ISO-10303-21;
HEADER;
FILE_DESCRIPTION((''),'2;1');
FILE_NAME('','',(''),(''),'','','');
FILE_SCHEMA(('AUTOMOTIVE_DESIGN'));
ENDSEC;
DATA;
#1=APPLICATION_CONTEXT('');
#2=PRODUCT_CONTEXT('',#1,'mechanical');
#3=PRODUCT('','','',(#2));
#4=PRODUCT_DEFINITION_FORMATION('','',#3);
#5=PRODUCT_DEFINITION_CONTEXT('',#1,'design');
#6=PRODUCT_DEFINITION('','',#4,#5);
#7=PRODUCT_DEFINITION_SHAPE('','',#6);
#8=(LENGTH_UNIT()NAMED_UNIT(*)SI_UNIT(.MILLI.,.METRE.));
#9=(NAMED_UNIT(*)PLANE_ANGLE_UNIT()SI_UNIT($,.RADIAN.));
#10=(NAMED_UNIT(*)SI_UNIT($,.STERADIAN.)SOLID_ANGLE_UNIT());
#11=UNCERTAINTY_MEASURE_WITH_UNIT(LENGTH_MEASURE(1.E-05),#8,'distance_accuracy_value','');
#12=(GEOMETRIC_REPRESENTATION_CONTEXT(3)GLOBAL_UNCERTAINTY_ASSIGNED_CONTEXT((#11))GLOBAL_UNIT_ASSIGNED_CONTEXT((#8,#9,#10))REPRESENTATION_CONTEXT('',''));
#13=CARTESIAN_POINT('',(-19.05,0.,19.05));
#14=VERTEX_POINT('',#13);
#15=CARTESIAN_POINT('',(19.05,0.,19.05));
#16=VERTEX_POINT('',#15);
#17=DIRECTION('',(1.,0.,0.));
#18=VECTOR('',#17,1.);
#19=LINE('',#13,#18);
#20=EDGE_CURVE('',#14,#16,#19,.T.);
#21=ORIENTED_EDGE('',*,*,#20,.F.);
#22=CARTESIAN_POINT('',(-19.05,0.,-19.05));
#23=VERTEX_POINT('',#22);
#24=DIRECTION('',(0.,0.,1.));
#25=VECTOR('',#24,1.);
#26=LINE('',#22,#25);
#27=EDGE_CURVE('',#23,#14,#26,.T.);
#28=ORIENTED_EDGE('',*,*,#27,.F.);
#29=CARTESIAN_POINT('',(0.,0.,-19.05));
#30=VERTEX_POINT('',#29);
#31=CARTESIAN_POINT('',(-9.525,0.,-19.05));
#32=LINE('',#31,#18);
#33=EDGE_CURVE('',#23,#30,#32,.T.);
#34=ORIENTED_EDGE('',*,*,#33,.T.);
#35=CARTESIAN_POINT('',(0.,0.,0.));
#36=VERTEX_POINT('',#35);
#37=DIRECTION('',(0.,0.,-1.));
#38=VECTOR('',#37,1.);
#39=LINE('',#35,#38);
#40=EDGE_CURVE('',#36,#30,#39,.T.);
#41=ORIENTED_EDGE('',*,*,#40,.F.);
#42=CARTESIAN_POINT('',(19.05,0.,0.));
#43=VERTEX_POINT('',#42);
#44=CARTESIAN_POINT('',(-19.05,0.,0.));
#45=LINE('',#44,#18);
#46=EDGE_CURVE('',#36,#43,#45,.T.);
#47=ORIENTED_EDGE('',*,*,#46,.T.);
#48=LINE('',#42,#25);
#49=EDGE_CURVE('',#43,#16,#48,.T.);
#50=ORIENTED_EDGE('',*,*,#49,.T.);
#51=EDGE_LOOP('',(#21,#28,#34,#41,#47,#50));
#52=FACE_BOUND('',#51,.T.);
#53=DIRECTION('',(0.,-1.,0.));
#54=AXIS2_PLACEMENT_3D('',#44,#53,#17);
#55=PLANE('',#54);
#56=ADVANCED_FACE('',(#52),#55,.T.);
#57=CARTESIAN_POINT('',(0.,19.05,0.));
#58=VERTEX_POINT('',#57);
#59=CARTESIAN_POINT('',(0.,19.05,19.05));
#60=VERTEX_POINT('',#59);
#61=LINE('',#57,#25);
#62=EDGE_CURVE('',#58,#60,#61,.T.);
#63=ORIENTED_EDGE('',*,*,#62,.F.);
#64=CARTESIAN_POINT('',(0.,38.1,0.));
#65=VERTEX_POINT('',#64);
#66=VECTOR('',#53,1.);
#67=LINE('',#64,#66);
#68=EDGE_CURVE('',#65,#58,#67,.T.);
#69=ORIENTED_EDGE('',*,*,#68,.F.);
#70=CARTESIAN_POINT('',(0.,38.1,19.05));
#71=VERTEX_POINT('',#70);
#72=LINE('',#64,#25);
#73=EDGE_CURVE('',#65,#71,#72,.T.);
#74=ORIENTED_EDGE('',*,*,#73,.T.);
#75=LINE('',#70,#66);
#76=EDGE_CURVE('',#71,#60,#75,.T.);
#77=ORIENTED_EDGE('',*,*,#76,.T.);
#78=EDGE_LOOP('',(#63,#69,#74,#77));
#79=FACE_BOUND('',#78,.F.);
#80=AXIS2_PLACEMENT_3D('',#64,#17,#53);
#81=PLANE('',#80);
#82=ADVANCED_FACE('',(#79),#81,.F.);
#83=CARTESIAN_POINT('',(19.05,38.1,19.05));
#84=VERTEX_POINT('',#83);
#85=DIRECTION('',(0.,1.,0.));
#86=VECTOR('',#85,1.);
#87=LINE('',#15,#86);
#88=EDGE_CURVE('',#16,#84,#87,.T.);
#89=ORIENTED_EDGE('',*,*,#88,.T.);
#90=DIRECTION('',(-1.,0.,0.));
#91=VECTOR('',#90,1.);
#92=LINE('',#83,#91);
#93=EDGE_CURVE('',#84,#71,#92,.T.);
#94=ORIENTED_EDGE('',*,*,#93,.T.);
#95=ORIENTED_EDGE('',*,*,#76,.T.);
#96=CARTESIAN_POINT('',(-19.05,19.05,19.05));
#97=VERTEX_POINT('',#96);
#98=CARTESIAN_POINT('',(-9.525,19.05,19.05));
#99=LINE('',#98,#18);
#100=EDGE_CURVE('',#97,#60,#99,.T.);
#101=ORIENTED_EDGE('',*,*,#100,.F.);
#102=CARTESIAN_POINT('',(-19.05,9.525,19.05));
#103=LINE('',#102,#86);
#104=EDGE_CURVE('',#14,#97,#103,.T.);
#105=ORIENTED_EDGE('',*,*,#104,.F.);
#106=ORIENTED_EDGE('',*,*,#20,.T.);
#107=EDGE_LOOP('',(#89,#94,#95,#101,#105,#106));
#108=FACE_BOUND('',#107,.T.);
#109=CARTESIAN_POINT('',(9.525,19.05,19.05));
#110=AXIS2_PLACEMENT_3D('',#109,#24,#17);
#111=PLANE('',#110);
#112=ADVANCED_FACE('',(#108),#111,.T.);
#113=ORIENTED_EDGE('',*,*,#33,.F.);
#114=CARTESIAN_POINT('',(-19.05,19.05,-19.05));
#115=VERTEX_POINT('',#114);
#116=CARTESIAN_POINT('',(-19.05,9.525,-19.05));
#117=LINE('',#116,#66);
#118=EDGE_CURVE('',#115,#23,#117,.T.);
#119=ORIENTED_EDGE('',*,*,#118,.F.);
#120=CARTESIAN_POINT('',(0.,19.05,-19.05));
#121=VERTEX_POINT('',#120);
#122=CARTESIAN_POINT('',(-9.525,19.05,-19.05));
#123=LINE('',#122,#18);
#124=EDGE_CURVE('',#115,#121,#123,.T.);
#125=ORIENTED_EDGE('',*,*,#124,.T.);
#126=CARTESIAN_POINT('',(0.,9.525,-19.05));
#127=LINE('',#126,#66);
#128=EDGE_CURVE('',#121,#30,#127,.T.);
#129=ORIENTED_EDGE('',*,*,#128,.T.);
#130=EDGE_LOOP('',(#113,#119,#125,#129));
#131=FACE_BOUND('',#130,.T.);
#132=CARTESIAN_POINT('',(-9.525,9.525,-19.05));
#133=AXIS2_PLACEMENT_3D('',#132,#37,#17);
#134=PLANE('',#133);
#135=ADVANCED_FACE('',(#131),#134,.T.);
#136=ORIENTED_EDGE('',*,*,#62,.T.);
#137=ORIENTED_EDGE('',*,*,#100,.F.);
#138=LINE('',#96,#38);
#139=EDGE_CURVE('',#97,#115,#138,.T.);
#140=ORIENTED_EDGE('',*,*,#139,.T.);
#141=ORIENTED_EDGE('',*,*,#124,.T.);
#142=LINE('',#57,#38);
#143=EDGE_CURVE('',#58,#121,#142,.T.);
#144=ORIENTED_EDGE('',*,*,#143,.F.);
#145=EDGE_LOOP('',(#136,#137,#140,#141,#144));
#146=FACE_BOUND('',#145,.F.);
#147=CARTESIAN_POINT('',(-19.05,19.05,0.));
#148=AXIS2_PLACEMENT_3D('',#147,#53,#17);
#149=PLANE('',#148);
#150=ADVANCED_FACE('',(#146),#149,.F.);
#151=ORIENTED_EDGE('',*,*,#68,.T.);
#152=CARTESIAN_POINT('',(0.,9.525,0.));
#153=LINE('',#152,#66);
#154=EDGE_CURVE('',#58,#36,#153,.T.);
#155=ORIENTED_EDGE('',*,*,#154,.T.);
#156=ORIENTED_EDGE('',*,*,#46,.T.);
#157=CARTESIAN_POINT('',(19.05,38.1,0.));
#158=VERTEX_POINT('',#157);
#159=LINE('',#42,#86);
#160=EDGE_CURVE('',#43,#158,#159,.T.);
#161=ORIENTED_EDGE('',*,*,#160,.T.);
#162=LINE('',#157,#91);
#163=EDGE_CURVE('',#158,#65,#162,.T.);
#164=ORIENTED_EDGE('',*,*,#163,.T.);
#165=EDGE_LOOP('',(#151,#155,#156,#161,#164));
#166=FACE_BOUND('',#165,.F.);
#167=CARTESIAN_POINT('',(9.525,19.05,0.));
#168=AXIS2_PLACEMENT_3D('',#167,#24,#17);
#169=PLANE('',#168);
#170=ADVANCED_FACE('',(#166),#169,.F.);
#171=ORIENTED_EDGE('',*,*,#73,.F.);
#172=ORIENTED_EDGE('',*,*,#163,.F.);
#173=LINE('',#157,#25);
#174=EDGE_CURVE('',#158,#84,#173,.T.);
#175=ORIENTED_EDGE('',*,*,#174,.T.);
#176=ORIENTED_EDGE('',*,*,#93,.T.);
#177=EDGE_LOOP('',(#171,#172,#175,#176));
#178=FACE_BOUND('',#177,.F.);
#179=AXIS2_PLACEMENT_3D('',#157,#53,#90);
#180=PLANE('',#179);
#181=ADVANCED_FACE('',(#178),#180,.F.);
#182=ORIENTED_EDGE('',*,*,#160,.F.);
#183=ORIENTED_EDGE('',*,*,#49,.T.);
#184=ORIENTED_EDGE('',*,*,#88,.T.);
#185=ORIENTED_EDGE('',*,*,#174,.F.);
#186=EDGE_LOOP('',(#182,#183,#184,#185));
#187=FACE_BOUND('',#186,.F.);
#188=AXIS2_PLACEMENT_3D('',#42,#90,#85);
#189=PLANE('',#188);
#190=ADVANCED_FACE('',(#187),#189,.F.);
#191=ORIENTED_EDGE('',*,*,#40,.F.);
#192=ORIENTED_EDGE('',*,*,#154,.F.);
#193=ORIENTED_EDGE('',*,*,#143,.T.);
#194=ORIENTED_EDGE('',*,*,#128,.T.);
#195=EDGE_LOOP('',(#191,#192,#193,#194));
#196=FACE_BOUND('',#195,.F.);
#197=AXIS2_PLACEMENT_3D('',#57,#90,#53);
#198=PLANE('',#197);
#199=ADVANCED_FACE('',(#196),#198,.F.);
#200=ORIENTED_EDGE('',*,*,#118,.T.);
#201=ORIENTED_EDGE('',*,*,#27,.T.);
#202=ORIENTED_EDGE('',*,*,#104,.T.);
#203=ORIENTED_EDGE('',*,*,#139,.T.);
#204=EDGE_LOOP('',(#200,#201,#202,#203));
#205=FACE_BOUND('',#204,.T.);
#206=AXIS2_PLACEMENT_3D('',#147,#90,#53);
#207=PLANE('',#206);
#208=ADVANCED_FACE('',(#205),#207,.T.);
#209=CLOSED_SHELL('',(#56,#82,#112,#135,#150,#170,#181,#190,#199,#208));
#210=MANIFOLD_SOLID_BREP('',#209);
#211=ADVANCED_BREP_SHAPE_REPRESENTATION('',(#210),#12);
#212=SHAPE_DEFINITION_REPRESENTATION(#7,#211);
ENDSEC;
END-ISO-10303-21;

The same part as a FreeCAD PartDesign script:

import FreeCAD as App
import Part
import Sketcher

V = App.Vector
Q = App.Units.Quantity

doc = App.newDocument("Part")
params = doc.addObject("Spreadsheet::Sheet", "Params")
for row, (alias, value) in enumerate([
    ("sketch1_width", "1.5 in"),
    ("pad1_length", "0.75 in"),
    ("sketch2_width", "0.75 in"),
    ("pad2_length", "0.75 in"),
], start=1):
    params.set(f"A{row}", alias)
    params.set(f"B{row}", "=" + value)
    params.setAlias(f"B{row}", alias)

body = doc.addObject("PartDesign::Body", "Body")

# Sketch on XY plane
sketch1 = doc.addObject("Sketcher::SketchObject", "Sketch")
body.addObject(sketch1)
sketch1.AttachmentSupport = (doc.XY_Plane, [""])
sketch1.MapMode = "FlatFace"
sketch1.addGeometry(Part.LineSegment(V(19, 0, 0), V(19, 38, 0)), False)
sketch1.addGeometry(Part.LineSegment(V(19, 38, 0), V(0, 38, 0)), False)
sketch1.addGeometry(Part.LineSegment(V(0, 38, 0), V(0, 19, 0)), False)
sketch1.addGeometry(Part.LineSegment(V(0, 19, 0), V(-19, 19, 0)), False)
sketch1.addGeometry(Part.LineSegment(V(-19, 19, 0), V(-19, 0, 0)), False)
sketch1.addGeometry(Part.LineSegment(V(-19, 0, 0), V(19, 0, 0)), False)
sketch1.addConstraint(Sketcher.Constraint("Coincident", 0, 2, 1, 1))
sketch1.addConstraint(Sketcher.Constraint("Coincident", 1, 2, 2, 1))
sketch1.addConstraint(Sketcher.Constraint("Coincident", 2, 2, 3, 1))
sketch1.addConstraint(Sketcher.Constraint("Coincident", 3, 2, 4, 1))
sketch1.addConstraint(Sketcher.Constraint("Coincident", 4, 2, 5, 1))
sketch1.addConstraint(Sketcher.Constraint("Coincident", 5, 2, 0, 1))
sketch1.addConstraint(Sketcher.Constraint("Vertical", 0))
sketch1.addConstraint(Sketcher.Constraint("Horizontal", 1))
sketch1.addConstraint(Sketcher.Constraint("Vertical", 2))
sketch1.addConstraint(Sketcher.Constraint("Horizontal", 3))
sketch1.addConstraint(Sketcher.Constraint("Vertical", 4))
sketch1.addConstraint(Sketcher.Constraint("Horizontal", 5))
sketch1.addConstraint(Sketcher.Constraint("Symmetric", 4, 2, 5, 2, -1, 1))
sketch1.addConstraint(Sketcher.Constraint("PointOnObject", 1, 2, -2))
sketch1.addConstraint(Sketcher.Constraint("Equal", 5, 0))
sketch1.addConstraint(Sketcher.Constraint("Equal", 3, 2))
sketch1.addConstraint(Sketcher.Constraint("DistanceX", 5, 1, 5, 2, Q("1.5 in")))
sketch1.setExpression("Constraints[16]", "Params.sketch1_width")
pad1 = doc.addObject("PartDesign::Pad", "Pad")
body.addObject(pad1)
pad1.Profile = sketch1
pad1.setExpression("Length", "Params.pad1_length")

# Sketch on XY plane
sketch2 = doc.addObject("Sketcher::SketchObject", "Sketch001")
body.addObject(sketch2)
sketch2.AttachmentSupport = (doc.XY_Plane, [""])
sketch2.MapMode = "FlatFace"
sketch2.addGeometry(Part.LineSegment(V(-19, 0, 0), V(-19, 19, 0)), False)
sketch2.addGeometry(Part.LineSegment(V(-19, 19, 0), V(0, 19, 0)), False)
sketch2.addGeometry(Part.LineSegment(V(0, 19, 0), V(0, 0, 0)), False)
sketch2.addGeometry(Part.LineSegment(V(0, 0, 0), V(-19, 0, 0)), False)
sketch2.addConstraint(Sketcher.Constraint("Coincident", 0, 2, 1, 1))
sketch2.addConstraint(Sketcher.Constraint("Coincident", 1, 2, 2, 1))
sketch2.addConstraint(Sketcher.Constraint("Coincident", 2, 2, 3, 1))
sketch2.addConstraint(Sketcher.Constraint("Coincident", 3, 2, 0, 1))
sketch2.addConstraint(Sketcher.Constraint("Vertical", 0))
sketch2.addConstraint(Sketcher.Constraint("Horizontal", 1))
sketch2.addConstraint(Sketcher.Constraint("Vertical", 2))
sketch2.addConstraint(Sketcher.Constraint("Horizontal", 3))
sketch2.addConstraint(Sketcher.Constraint("Coincident", 2, 2, -1, 1))
sketch2.addConstraint(Sketcher.Constraint("Equal", 3, 0))
sketch2.addConstraint(Sketcher.Constraint("DistanceX", 1, 1, 1, 2, Q("0.75 in")))
sketch2.setExpression("Constraints[10]", "Params.sketch2_width")
pad2 = doc.addObject("PartDesign::Pad", "Pad001")
body.addObject(pad2)
pad2.Profile = sketch2
pad2.setExpression("Length", "Params.pad2_length")
pad2.Reversed = True

doc.recompute()
